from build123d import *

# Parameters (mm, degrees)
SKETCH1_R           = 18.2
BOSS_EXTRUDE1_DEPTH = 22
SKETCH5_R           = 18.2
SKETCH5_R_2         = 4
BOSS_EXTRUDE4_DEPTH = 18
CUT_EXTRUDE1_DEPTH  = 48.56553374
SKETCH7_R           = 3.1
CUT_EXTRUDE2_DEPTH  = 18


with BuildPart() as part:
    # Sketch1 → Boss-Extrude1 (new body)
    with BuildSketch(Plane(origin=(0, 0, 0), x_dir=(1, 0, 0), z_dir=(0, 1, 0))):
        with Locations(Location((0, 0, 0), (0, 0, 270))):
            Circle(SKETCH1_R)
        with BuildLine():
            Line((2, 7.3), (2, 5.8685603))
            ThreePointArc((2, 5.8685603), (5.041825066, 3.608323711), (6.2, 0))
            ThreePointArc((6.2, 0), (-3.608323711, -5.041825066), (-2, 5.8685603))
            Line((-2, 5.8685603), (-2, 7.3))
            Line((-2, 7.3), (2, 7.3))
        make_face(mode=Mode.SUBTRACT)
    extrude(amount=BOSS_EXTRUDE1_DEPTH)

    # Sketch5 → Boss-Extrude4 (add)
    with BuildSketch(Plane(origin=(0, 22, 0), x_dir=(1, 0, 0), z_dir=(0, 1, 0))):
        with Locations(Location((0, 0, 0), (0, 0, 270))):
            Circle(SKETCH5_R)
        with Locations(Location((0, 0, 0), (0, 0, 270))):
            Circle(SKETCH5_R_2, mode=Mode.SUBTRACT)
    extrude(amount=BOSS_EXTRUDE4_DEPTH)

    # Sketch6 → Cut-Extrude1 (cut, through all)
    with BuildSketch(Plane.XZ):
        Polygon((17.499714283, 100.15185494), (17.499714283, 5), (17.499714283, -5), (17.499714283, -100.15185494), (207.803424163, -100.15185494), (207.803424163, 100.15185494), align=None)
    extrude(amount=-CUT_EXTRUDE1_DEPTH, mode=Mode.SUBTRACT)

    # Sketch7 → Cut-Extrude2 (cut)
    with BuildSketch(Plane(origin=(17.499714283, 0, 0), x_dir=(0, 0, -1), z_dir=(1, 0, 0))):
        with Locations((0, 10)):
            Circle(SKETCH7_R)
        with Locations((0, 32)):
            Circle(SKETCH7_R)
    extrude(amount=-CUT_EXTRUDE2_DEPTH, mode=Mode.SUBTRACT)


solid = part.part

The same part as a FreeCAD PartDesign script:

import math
import FreeCAD as App
import Part
import Sketcher

V = App.Vector
Q = App.Units.Quantity


def add_polygon(sketch, points):
    """Adds a closed chain of lines whose ends are joined by coincident constraints."""
    first, n = sketch.GeometryCount, len(points)
    for a, b in zip(points, points[1:] + points[:1]):
        sketch.addGeometry(Part.LineSegment(App.Vector(*a, 0), App.Vector(*b, 0)), False)
    for i in range(n):
        sketch.addConstraint(Sketcher.Constraint("Coincident", first + i, 2, first + (i + 1) % n, 1))

doc = App.newDocument("Part")
params = doc.addObject("Spreadsheet::Sheet", "Params")
for row, (alias, value) in enumerate([
    ("sketch1_diameter", "36.4 mm"),
    ("sketch1_radius", "6.2 mm"),
    ("sketch1_width", "4 mm"),
    ("pad1_length", "22 mm"),
    ("sketch2_diameter", "8 mm"),
    ("sketch2_diameter2", "36.4 mm"),
    ("pad2_length", "18 mm"),
    ("sketch4_diameter", "6.2 mm"),
    ("pocket2_length", "18 mm"),
], start=1):
    params.set(f"A{row}", alias)
    params.set(f"B{row}", "=" + value)
    params.setAlias(f"B{row}", alias)

body = doc.addObject("PartDesign::Body", "Body")

sketch1 = doc.addObject("Sketcher::SketchObject", "Sketch")
body.addObject(sketch1)
sketch1.AttachmentSupport = (doc.XZ_Plane, [""])
sketch1.MapMode = "FlatFace"
sketch1.addGeometry([
    Part.Circle(V(0, 0, 0), V(0, 0, 1), 18.2),
    Part.LineSegment(V(-2, -7.3, 0), V(2, -7.3, 0)),
    Part.LineSegment(V(2, -7.3, 0), V(2, -5.9, 0)),
    Part.ArcOfCircle(Part.Circle(V(0, 0, 0), V(0, 0, 1), 6.2), math.radians(-71), math.radians(0)),
    Part.ArcOfCircle(Part.Circle(V(0, 0, 0), V(0, 0, 1), 6.2), math.radians(0), math.radians(251)),
    Part.LineSegment(V(-2, -5.9, 0), V(-2, -7.3, 0)),
], False)
sketch1.addConstraint([
    Sketcher.Constraint("Coincident", 1, 2, 2, 1),
    Sketcher.Constraint("Coincident", 2, 2, 3, 1),
    Sketcher.Constraint("Tangent", 3, 2, 4, 1),
    Sketcher.Constraint("Coincident", 4, 2, 5, 1),
    Sketcher.Constraint("Coincident", 5, 2, 1, 1),
    Sketcher.Constraint("Horizontal", 1),
    Sketcher.Constraint("Vertical", 2),
    Sketcher.Constraint("Vertical", 5),
    Sketcher.Constraint("Coincident", 0, 3, -1, 1),
    Sketcher.Constraint("Coincident", 3, 3, -1, 1),
    Sketcher.Constraint("Equal", 3, 4),
    Sketcher.Constraint("PointOnObject", 3, 2, -1),
    Sketcher.Constraint("Horizontal", 2, 2, 4, 2),
    Sketcher.Constraint("Diameter", 0, Q("36.4 mm")),
    Sketcher.Constraint("Radius", 3, Q("6.2 mm")),
    Sketcher.Constraint("DistanceX", 1, 1, 1, 2, Q("4 mm")),
    Sketcher.Constraint("DistanceY", 1, 2, -1, 1, Q("7.3 mm")),
])
sketch1.setExpression("Constraints[13]", "Params.sketch1_diameter")
sketch1.setExpression("Constraints[14]", "Params.sketch1_radius")
sketch1.setExpression("Constraints[15]", "Params.sketch1_width")
pad1 = doc.addObject("PartDesign::Pad", "Pad")
body.addObject(pad1)
pad1.Profile = sketch1
pad1.setExpression("Length", "Params.pad1_length")
pad1.Reversed = True

sketch2 = doc.addObject("Sketcher::SketchObject", "Sketch001")
body.addObject(sketch2)
sketch2.AttachmentSupport = (doc.XZ_Plane, [""])
sketch2.MapMode = "FlatFace"
sketch2.AttachmentOffset = App.Placement(V(0, 0, -22), App.Rotation())
sketch2.addGeometry([
    Part.Circle(V(0, 0, 0), V(0, 0, 1), 18.2),
    Part.Circle(V(0, 0, 0), V(0, 0, 1), 4),
], False)
sketch2.addConstraint([
    Sketcher.Constraint("Coincident", 0, 3, -1, 1),
    Sketcher.Constraint("Coincident", 1, 3, -1, 1),
    Sketcher.Constraint("Diameter", 1, Q("8 mm")),
    Sketcher.Constraint("Diameter", 0, Q("36.4 mm")),
])
sketch2.setExpression("Constraints[2]", "Params.sketch2_diameter")
sketch2.setExpression("Constraints[3]", "Params.sketch2_diameter2")
pad2 = doc.addObject("PartDesign::Pad", "Pad001")
body.addObject(pad2)
pad2.Profile = sketch2
pad2.setExpression("Length", "Params.pad2_length")
pad2.Reversed = True

sketch3 = doc.addObject("Sketcher::SketchObject", "Sketch002")
body.addObject(sketch3)
sketch3.AttachmentSupport = (doc.XZ_Plane, [""])
sketch3.MapMode = "FlatFace"
add_polygon(sketch3, [(17, 100), (17, -100), (208, -100), (208, 100)])
sketch3.addConstraint([
    Sketcher.Constraint("Vertical", 0),
    Sketcher.Constraint("Horizontal", 1),
    Sketcher.Constraint("Vertical", 2),
    Sketcher.Constraint("Horizontal", 3),
    Sketcher.Constraint("DistanceX", 1, 1, 1, 2, Q("190.30371 mm")),
    Sketcher.Constraint("DistanceY", 0, 2, 0, 1, Q("200.30371 mm")),
    Sketcher.Constraint("DistanceX", -1, 1, 0, 2, Q("17.499714 mm")),
    Sketcher.Constraint("DistanceY", 0, 2, -1, 1, Q("100.151855 mm")),
])
pocket1 = doc.addObject("PartDesign::Pocket", "Pocket")
body.addObject(pocket1)
pocket1.Profile = sketch3
pocket1.Type = "ThroughAll"

sketch4 = doc.addObject("Sketcher::SketchObject", "Sketch003")
body.addObject(sketch4)
sketch4.AttachmentSupport = (doc.YZ_Plane, [""])
sketch4.MapMode = "FlatFace"
sketch4.AttachmentOffset = App.Placement(V(0, 0, 17.499714), App.Rotation())
sketch4.addGeometry([
    Part.Circle(V(10, 0, 0), V(0, 0, 1), 3.1),
    Part.Circle(V(32, 0, 0), V(0, 0, 1), 3.1),
], False)
sketch4.addConstraint([
    Sketcher.Constraint("Equal", 0, 1),
    Sketcher.Constraint("PointOnObject", 0, 3, -1),
    Sketcher.Constraint("PointOnObject", 1, 3, -1),
    Sketcher.Constraint("Diameter", 0, Q("6.2 mm")),
    Sketcher.Constraint("DistanceX", -1, 1, 0, 3, Q("10 mm")),
    Sketcher.Constraint("DistanceX", -1, 1, 1, 3, Q("32 mm")),
])
sketch4.setExpression("Constraints[3]", "Params.sketch4_diameter")
pocket2 = doc.addObject("PartDesign::Pocket", "Pocket001")
body.addObject(pocket2)
pocket2.Profile = sketch4
pocket2.setExpression("Length", "Params.pocket2_length")

doc.recompute()
